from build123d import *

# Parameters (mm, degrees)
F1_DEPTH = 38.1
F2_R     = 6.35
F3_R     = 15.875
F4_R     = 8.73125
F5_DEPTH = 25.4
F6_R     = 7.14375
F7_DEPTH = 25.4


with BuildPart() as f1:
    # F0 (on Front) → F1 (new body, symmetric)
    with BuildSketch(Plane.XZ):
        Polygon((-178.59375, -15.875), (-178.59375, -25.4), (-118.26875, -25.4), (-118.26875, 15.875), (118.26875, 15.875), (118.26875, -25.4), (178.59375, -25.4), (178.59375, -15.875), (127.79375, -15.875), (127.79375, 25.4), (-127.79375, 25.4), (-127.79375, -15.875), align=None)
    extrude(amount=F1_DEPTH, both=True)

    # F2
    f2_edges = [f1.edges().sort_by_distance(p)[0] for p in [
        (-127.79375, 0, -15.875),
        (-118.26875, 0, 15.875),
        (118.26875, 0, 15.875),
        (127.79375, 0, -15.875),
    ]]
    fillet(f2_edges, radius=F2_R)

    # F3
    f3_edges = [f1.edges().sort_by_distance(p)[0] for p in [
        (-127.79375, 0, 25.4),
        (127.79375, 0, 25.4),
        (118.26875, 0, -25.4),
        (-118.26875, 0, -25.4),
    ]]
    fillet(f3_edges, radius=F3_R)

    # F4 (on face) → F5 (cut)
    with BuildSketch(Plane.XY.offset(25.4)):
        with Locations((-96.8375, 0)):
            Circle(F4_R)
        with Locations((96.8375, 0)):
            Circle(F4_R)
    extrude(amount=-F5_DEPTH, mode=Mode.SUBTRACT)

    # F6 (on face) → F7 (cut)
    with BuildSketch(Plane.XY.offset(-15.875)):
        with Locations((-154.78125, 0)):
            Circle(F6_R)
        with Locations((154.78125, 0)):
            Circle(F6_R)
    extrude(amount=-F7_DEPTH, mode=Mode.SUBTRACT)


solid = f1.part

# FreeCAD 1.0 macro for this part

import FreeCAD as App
import Part
import Sketcher
from FreeCAD import Vector
Q = App.Units.Quantity


def edges_at(feature, points):
    """Names of the edges that pass closest to the given points."""
    edges = feature.Shape.Edges
    near = lambda p: min(range(len(edges)), key=lambda i: edges[i].distToShape(Part.Vertex(*p))[0])
    return sorted({f"Edge{near(p) + 1}" for p in points})


def add_polygon(sketch, points):
    """Adds a closed chain of lines whose ends are joined by coincident constraints."""
    first, n = sketch.GeometryCount, len(points)
    for a, b in zip(points, points[1:] + points[:1]):
        sketch.addGeometry(Part.LineSegment(App.Vector(*a, 0), App.Vector(*b, 0)), False)
    for i in range(n):
        sketch.addConstraint(Sketcher.Constraint("Coincident", first + i, 2, first + (i + 1) % n, 1))

doc = App.newDocument("Part")
body = doc.addObject("PartDesign::Body", "Body")

# Sketch on XZ plane
sketch1 = doc.addObject("Sketcher::SketchObject", "Sketch")
body.addObject(sketch1)
sketch1.AttachmentSupport = (doc.XZ_Plane, [""])
sketch1.MapMode = "FlatFace"
add_polygon(sketch1, [(-179, -16), (-179, -25), (-118, -25), (-118, 16), (118, 16), (118, -25), (179, -25), (179, -16), (128, -16), (128, 25), (-128, 25), (-128, -16)])  # lines 0-11
sketch1.addConstraint([
    Sketcher.Constraint("Vertical", 0),
    Sketcher.Constraint("Horizontal", 1),
    Sketcher.Constraint("Vertical", 2),
    Sketcher.Constraint("Horizontal", 3),
    Sketcher.Constraint("Vertical", 4),
    Sketcher.Constraint("Horizontal", 5),
    Sketcher.Constraint("Vertical", 6),
    Sketcher.Constraint("Horizontal", 7),
    Sketcher.Constraint("Vertical", 8),
    Sketcher.Constraint("Horizontal", 9),
    Sketcher.Constraint("Vertical", 10),
    Sketcher.Constraint("Horizontal", 11),
    Sketcher.Constraint("Symmetric", 1, 2, 4, 2, -2),
    Sketcher.Constraint("Symmetric", 7, 2, 10, 2, -2),
    Sketcher.Constraint("Equal", 1, 5),
    Sketcher.Constraint("Equal", 4, 8),
    Sketcher.Constraint("DistanceX", 7, 2, 7, 1, Q("2 in")),
    Sketcher.Constraint("DistanceY", 0, 2, -1, 1, Q("1 in")),
    Sketcher.Constraint("DistanceY", -1, 1, 8, 2, Q("1 in")),
    Sketcher.Constraint("DistanceX", 1, 1, 1, 2, Q("2.375 in")),
    Sketcher.Constraint("DistanceX", 3, 1, 3, 2, Q("9.3125 in")),
    Sketcher.Constraint("DistanceY", 0, 2, 0, 1, Q("0.375 in")),
])
pad1 = doc.addObject("PartDesign::Pad", "Pad")
body.addObject(pad1)
pad1.Profile = sketch1
pad1.Length = Q("3 in")
pad1.Midplane = True
doc.recompute()

fillet = doc.addObject("PartDesign::Fillet", "Fillet")
body.addObject(fillet)
fillet.Base = (pad1, edges_at(pad1, [
    (-127.794, 0, -15.875),
    (-118.269, 0, 15.875),
    (118.269, 0, 15.875),
    (127.794, 0, -15.875),
]))
fillet.Radius = Q("0.25 in")
doc.recompute()

fillet2 = doc.addObject("PartDesign::Fillet", "Fillet001")
body.addObject(fillet2)
fillet2.Base = (fillet, edges_at(fillet, [
    (-127.794, 0, 25.4),
    (127.794, 0, 25.4),
    (118.269, 0, -25.4),
    (-118.269, 0, -25.4),
]))
fillet2.Radius = Q("0.625 in")

# Sketch on XY plane
sketch2 = doc.addObject("Sketcher::SketchObject", "Sketch001")
body.addObject(sketch2)
sketch2.AttachmentSupport = (doc.XY_Plane, [""])
sketch2.MapMode = "FlatFace"
sketch2.AttachmentOffset = App.Placement(Vector(0, 0, 1 * 25.4), App.Rotation())
sketch2.addGeometry([
    Part.Circle(Vector(-97, 0, 0), Vector(0, 0, 1), 9),
    Part.Circle(Vector(97, 0, 0), Vector(0, 0, 1), 9),
], False)
sketch2.addConstraint([
    Sketcher.Constraint("Equal", 0, 1),
    Sketcher.Constraint("Symmetric", 0, 3, 1, 3, -1, 1),
    Sketcher.Constraint("PointOnObject", 0, 3, -1),
    Sketcher.Constraint("Diameter", 0, Q("0.6875 in")),
    Sketcher.Constraint("DistanceX", 0, 3, -1, 1, Q("3.8125 in")),
])
pocket1 = doc.addObject("PartDesign::Pocket", "Pocket")
body.addObject(pocket1)
pocket1.Profile = sketch2
pocket1.Length = Q("1 in")

# Sketch on XY plane
sketch3 = doc.addObject("Sketcher::SketchObject", "Sketch002")
body.addObject(sketch3)
sketch3.AttachmentSupport = (doc.XY_Plane, [""])
sketch3.MapMode = "FlatFace"
sketch3.AttachmentOffset = App.Placement(Vector(0, 0, -0.625 * 25.4), App.Rotation())
sketch3.addGeometry([
    Part.Circle(Vector(-155, 0, 0), Vector(0, 0, 1), 7),
    Part.Circle(Vector(155, 0, 0), Vector(0, 0, 1), 7),
], False)
sketch3.addConstraint([
    Sketcher.Constraint("Equal", 0, 1),
    Sketcher.Constraint("Symmetric", 0, 3, 1, 3, -1, 1),
    Sketcher.Constraint("PointOnObject", 0, 3, -1),
    Sketcher.Constraint("Diameter", 0, Q("0.5625 in")),
    Sketcher.Constraint("DistanceX", 0, 3, -1, 1, Q("6.09375 in")),
])
pocket2 = doc.addObject("PartDesign::Pocket", "Pocket001")
body.addObject(pocket2)
pocket2.Profile = sketch3
pocket2.Length = Q("1 in")

doc.recompute()
